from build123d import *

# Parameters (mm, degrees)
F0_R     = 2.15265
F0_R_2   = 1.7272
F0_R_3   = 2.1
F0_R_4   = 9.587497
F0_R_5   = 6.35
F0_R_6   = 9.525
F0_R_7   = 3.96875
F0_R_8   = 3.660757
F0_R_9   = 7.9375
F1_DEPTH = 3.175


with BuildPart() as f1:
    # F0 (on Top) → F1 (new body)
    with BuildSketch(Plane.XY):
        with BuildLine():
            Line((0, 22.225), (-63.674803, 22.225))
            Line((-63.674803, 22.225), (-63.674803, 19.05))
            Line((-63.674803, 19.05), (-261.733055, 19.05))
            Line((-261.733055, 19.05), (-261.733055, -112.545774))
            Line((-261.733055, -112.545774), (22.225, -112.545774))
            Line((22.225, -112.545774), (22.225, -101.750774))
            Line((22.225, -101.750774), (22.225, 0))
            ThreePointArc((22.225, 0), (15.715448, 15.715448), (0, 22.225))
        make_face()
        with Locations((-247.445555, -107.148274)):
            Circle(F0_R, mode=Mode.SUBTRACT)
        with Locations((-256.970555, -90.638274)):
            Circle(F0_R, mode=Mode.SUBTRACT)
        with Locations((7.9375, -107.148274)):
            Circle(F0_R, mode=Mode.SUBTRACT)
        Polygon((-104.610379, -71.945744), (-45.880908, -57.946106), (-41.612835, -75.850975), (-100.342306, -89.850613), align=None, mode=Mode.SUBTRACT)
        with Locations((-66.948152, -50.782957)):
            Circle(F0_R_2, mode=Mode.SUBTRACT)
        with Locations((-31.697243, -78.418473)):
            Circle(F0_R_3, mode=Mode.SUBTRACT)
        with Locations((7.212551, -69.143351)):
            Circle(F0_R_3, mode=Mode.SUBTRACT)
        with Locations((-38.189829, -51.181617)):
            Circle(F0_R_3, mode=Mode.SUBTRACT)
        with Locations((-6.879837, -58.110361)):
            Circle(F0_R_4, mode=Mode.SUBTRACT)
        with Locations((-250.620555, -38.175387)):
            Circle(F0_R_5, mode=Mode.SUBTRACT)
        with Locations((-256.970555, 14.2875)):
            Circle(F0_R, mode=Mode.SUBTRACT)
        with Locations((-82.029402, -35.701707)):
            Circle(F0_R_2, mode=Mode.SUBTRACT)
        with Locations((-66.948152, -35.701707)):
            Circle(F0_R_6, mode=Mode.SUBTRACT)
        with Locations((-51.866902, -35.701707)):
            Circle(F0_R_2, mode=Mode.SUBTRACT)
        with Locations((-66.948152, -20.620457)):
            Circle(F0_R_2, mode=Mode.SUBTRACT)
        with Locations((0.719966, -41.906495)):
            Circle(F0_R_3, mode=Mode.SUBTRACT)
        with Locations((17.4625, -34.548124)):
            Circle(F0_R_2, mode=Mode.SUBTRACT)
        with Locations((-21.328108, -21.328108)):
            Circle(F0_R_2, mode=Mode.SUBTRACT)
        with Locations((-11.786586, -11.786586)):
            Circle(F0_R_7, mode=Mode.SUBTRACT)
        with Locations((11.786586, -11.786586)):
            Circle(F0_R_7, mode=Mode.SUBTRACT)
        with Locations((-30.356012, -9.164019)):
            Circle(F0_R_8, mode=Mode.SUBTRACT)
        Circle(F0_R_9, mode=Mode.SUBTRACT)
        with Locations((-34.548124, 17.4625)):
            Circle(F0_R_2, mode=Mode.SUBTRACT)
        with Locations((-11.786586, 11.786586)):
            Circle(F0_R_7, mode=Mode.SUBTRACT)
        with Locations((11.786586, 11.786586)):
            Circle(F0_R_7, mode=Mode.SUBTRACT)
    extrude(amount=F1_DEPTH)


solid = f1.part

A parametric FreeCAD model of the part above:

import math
import FreeCAD as App
import Part
import Sketcher
from FreeCAD import Vector
Q = App.Units.Quantity


def add_polygon(sketch, points):
    """Adds a closed chain of lines whose ends are joined by coincident constraints."""
    first, n = sketch.GeometryCount, len(points)
    for a, b in zip(points, points[1:] + points[:1]):
        sketch.addGeometry(Part.LineSegment(App.Vector(*a, 0), App.Vector(*b, 0)), False)
    for i in range(n):
        sketch.addConstraint(Sketcher.Constraint("Coincident", first + i, 2, first + (i + 1) % n, 1))

doc = App.newDocument("Part")
body = doc.addObject("PartDesign::Body", "Body")

# Sketch on XY plane
sketch1 = doc.addObject("Sketcher::SketchObject", "Sketch")
body.addObject(sketch1)
sketch1.AttachmentSupport = (doc.XY_Plane, [""])
sketch1.MapMode = "FlatFace"
sketch1.addGeometry(Part.LineSegment(Vector(0, 22.2, 0), Vector(-63.7, 22.2, 0)), False)  # 0
sketch1.addGeometry(Part.LineSegment(Vector(-63.7, 22.2, 0), Vector(-63.7, 19.1, 0)), False)  # 1
sketch1.addGeometry(Part.LineSegment(Vector(-63.7, 19.1, 0), Vector(-261.7, 19.1, 0)), False)  # 2
sketch1.addGeometry(Part.LineSegment(Vector(-261.7, 19.1, 0), Vector(-261.7, -112.5, 0)), False)  # 3
sketch1.addGeometry(Part.LineSegment(Vector(-261.7, -112.5, 0), Vector(22.2, -112.5, 0)), False)  # 4
sketch1.addGeometry(Part.LineSegment(Vector(22.2, -112.5, 0), Vector(22.2, 0, 0)), False)  # 5
sketch1.addGeometry(Part.ArcOfCircle(Part.Circle(Vector(0, 0, 0), Vector(0, 0, 1), 22.2), math.radians(0), math.radians(90)), False)  # 6
sketch1.addGeometry(Part.Circle(Vector(-247.4, -107.1, 0), Vector(0, 0, 1), 2.2), False)  # 7
sketch1.addGeometry(Part.Circle(Vector(-257, -90.6, 0), Vector(0, 0, 1), 2.2), False)  # 8
sketch1.addGeometry(Part.Circle(Vector(7.9, -107.1, 0), Vector(0, 0, 1), 2.2), False)  # 9
sketch1.addGeometry(Part.Circle(Vector(-31.7, -78.4, 0), Vector(0, 0, 1), 2.1), False)  # 10
add_polygon(sketch1, [(-100.3, -89.9), (-104.6, -71.9), (-45.9, -57.9), (-41.6, -75.9)])  # lines 11-14
sketch1.addGeometry(Part.Circle(Vector(-66.9, -50.8, 0), Vector(0, 0, 1), 1.7), False)  # 15
sketch1.addGeometry(Part.Circle(Vector(7.2, -69.1, 0), Vector(0, 0, 1), 2.1), False)  # 16
sketch1.addGeometry(Part.Circle(Vector(-38.2, -51.2, 0), Vector(0, 0, 1), 2.1), False)  # 17
sketch1.addGeometry(Part.Circle(Vector(-6.9, -58.1, 0), Vector(0, 0, 1), 9.6), False)  # 18
sketch1.addGeometry(Part.Circle(Vector(-250.6, -38.2, 0), Vector(0, 0, 1), 6.3), False)  # 19
sketch1.addGeometry(Part.Circle(Vector(-257, 14.3, 0), Vector(0, 0, 1), 2.2), False)  # 20
sketch1.addGeometry(Part.Circle(Vector(-82, -35.7, 0), Vector(0, 0, 1), 1.7), False)  # 21
sketch1.addGeometry(Part.Circle(Vector(-66.9, -35.7, 0), Vector(0, 0, 1), 9.5), False)  # 22
sketch1.addGeometry(Part.Circle(Vector(-51.9, -35.7, 0), Vector(0, 0, 1), 1.7), False)  # 23
sketch1.addGeometry(Part.Circle(Vector(-66.9, -20.6, 0), Vector(0, 0, 1), 1.7), False)  # 24
sketch1.addGeometry(Part.Circle(Vector(0.7, -41.9, 0), Vector(0, 0, 1), 2.1), False)  # 25
sketch1.addGeometry(Part.Circle(Vector(17.5, -34.5, 0), Vector(0, 0, 1), 1.7), False)  # 26
sketch1.addGeometry(Part.Circle(Vector(-21.3, -21.3, 0), Vector(0, 0, 1), 1.7), False)  # 27
sketch1.addGeometry(Part.Circle(Vector(-30.4, -9.2, 0), Vector(0, 0, 1), 3.7), False)  # 28
sketch1.addGeometry(Part.Circle(Vector(-11.8, -11.8, 0), Vector(0, 0, 1), 4), False)  # 29
sketch1.addGeometry(Part.Circle(Vector(11.8, -11.8, 0), Vector(0, 0, 1), 4), False)  # 30
sketch1.addGeometry(Part.Circle(Vector(0, 0, 0), Vector(0, 0, 1), 7.9), False)  # 31
sketch1.addGeometry(Part.Circle(Vector(-34.5, 17.5, 0), Vector(0, 0, 1), 1.7), False)  # 32
sketch1.addGeometry(Part.Circle(Vector(-11.8, 11.8, 0), Vector(0, 0, 1), 4), False)  # 33
sketch1.addGeometry(Part.Circle(Vector(11.8, 11.8, 0), Vector(0, 0, 1), 4), False)  # 34
sketch1.addConstraint([
    Sketcher.Constraint("Coincident", 0, 2, 1, 1),
    Sketcher.Constraint("Coincident", 1, 2, 2, 1),
    Sketcher.Constraint("Coincident", 2, 2, 3, 1),
    Sketcher.Constraint("Coincident", 3, 2, 4, 1),
    Sketcher.Constraint("Coincident", 4, 2, 5, 1),
    Sketcher.Constraint("Tangent", 5, 2, 6, 1),
    Sketcher.Constraint("Tangent", 6, 2, 0, 1),
    Sketcher.Constraint("Horizontal", 0),
    Sketcher.Constraint("Vertical", 1),
    Sketcher.Constraint("Horizontal", 2),
    Sketcher.Constraint("Vertical", 3),
    Sketcher.Constraint("Horizontal", 4),
    Sketcher.Constraint("Vertical", 5),
    Sketcher.Constraint("Coincident", 6, 3, -1, 1),
    Sketcher.Constraint("Coincident", 31, 3, -1, 1),
    Sketcher.Constraint("Equal", 7, 8),
    Sketcher.Constraint("Equal", 8, 9),
    Sketcher.Constraint("Equal", 10, 16),
    Sketcher.Constraint("Equal", 16, 17),
    Sketcher.Constraint("Equal", 9, 20),
    Sketcher.Constraint("Equal", 15, 21),
    Sketcher.Constraint("Equal", 21, 23),
    Sketcher.Constraint("Equal", 23, 24),
    Sketcher.Constraint("Equal", 17, 25),
    Sketcher.Constraint("Equal", 24, 26),
    Sketcher.Constraint("Equal", 26, 27),
    Sketcher.Constraint("Equal", 29, 30),
    Sketcher.Constraint("Equal", 27, 32),
    Sketcher.Constraint("Equal", 30, 33),
    Sketcher.Constraint("Equal", 33, 34),
    Sketcher.Constraint("Symmetric", 30, 3, 33, 3, -1, 1),
    Sketcher.Constraint("Symmetric", 29, 3, 34, 3, -1, 1),
    Sketcher.Constraint("Symmetric", 29, 3, 30, 3, -2),
    Sketcher.Constraint("Perpendicular", 11, 12),
    Sketcher.Constraint("Perpendicular", 12, 13),
    Sketcher.Constraint("Perpendicular", 13, 14),
    Sketcher.Constraint("Horizontal", 7, 3, 9, 3),
    Sketcher.Constraint("Horizontal", 21, 3, 22, 3),
    Sketcher.Constraint("Horizontal", 22, 3, 23, 3),
    Sketcher.Constraint("Vertical", 8, 3, 20, 3),
    Sketcher.Constraint("Vertical", 15, 3, 22, 3),
    Sketcher.Constraint("Vertical", 22, 3, 24, 3),
    Sketcher.Constraint("Diameter", 19, Q("0.5 in")),
    Sketcher.Constraint("Diameter", 22, Q("0.75 in")),
    Sketcher.Constraint("Diameter", 15, Q("0.136 in")),
    Sketcher.Constraint("Diameter", 29, Q("0.3125 in")),
    Sketcher.Constraint("Diameter", 31, Q("0.625 in")),
    Sketcher.Constraint("Radius", 6, Q("0.875 in")),
    Sketcher.Constraint("Diameter", 7, Q("0.1695 in")),
    Sketcher.Constraint("Diameter", 10, Q("4.2 mm")),
    Sketcher.Constraint("DistanceY", 1, 2, 1, 1, Q("0.125 in")),
    Sketcher.Constraint("DistanceY", 7, 3, 8, 3, Q("0.65 in")),
    Sketcher.Constraint("DistanceX", 8, 3, 19, 3, Q("0.25 in")),
    Sketcher.Constraint("DistanceX", -1, 1, 9, 3, Q("0.3125 in")),
    Sketcher.Constraint("DistanceY", -1, 1, 20, 3, Q("0.5625 in")),
    Sketcher.Constraint("DistanceX", -1, 1, 26, 3, Q("0.6875 in")),
    Sketcher.Constraint("DistanceY", -1, 1, 32, 3, Q("0.6875 in")),
    Sketcher.Constraint("DistanceX", 8, 3, 7, 3, Q("0.375 in")),
    Sketcher.Constraint("DistanceX", 21, 3, 15, 3, Q("0.59375 in")),
    Sketcher.Constraint("DistanceY", 15, 3, 21, 3, Q("0.59375 in")),
    Sketcher.Constraint("DistanceX", 22, 3, 23, 3, Q("0.59375 in")),
    Sketcher.Constraint("DistanceY", 22, 3, 24, 3, Q("0.59375 in")),
    Sketcher.Constraint("DistanceX", 2, 2, 20, 3, Q("0.1875 in")),
    Sketcher.Constraint("Diameter", 18, Q("19.174994 mm")),
    Sketcher.Constraint("Diameter", 28, Q("7.321514 mm")),
    Sketcher.Constraint("DistanceY", 3, 2, 7, 3, Q("0.2125 in")),
    Sketcher.Constraint("Distance", 12, Q("60.375 mm")),
    Sketcher.Constraint("DistanceX", 2, 2, 2, 1, Q("198.058252 mm")),
    Sketcher.Constraint("DistanceY", 9, 3, 10, 3, Q("28.729801 mm")),
    Sketcher.Constraint("DistanceX", 21, 3, 6, 3, Q("82.029401 mm")),
    Sketcher.Constraint("DistanceY", 23, 3, 27, 3, Q("14.373599 mm")),
    Sketcher.Constraint("DistanceY", 17, 3, 28, 3, Q("42.017598 mm")),
    Sketcher.Constraint("DistanceY", 12, 2, 23, 3, Q("22.244399 mm")),
    Sketcher.Constraint("DistanceY", 10, 3, 13, 2, Q("2.567498 mm")),
    Sketcher.Constraint("Distance", 11, Q("18.406542 mm")),
    Sketcher.Constraint("DistanceX", 0, 2, 0, 1, Q("63.674803 mm")),
    Sketcher.Constraint("DistanceY", 3, 2, 3, 1, Q("131.595774 mm")),
    Sketcher.Constraint("DistanceX", -1, 1, 16, 3, Q("7.212551 mm")),
    Sketcher.Constraint("DistanceY", 16, 3, -1, 1, Q("69.143351 mm")),
    Sketcher.Constraint("DistanceX", 17, 3, -1, 1, Q("38.189829 mm")),
    Sketcher.Constraint("DistanceY", 18, 3, -1, 1, Q("58.110361 mm")),
    Sketcher.Constraint("DistanceX", 27, 3, -1, 1, Q("21.328108 mm")),
    Sketcher.Constraint("DistanceY", 27, 3, -1, 1, Q("21.328108 mm")),
    Sketcher.Constraint("DistanceX", 28, 3, -1, 1, Q("30.356012 mm")),
    Sketcher.Constraint("DistanceY", 28, 3, -1, 1, Q("9.164019 mm")),
    Sketcher.Constraint("DistanceX", 11, 2, -1, 1, Q("104.610379 mm")),
    Sketcher.Constraint("DistanceX", 7, 3, 10, 3, Q("215.748312 mm")),
    Sketcher.Constraint("DistanceY", 15, 3, 19, 3, Q("12.60757 mm")),
    Sketcher.Constraint("DistanceX", 10, 3, 25, 3, Q("32.417209 mm")),
    Sketcher.Constraint("DistanceY", 10, 3, 25, 3, Q("36.511978 mm")),
    Sketcher.Constraint("DistanceY", 25, 3, 26, 3, Q("7.358371 mm")),
    Sketcher.Constraint("DistanceX", 27, 3, 18, 3, Q("14.448271 mm")),
    Sketcher.Constraint("DistanceX", 29, 3, 25, 3, Q("12.506552 mm")),
    Sketcher.Constraint("DistanceY", 25, 3, 29, 3, Q("30.119909 mm")),
    Sketcher.Constraint("DistanceX", 32, 3, 29, 3, Q("22.761538 mm")),
])
pad1 = doc.addObject("PartDesign::Pad", "Pad")
body.addObject(pad1)
pad1.Profile = sketch1
pad1.Length = Q("0.125 in")

doc.recompute()
